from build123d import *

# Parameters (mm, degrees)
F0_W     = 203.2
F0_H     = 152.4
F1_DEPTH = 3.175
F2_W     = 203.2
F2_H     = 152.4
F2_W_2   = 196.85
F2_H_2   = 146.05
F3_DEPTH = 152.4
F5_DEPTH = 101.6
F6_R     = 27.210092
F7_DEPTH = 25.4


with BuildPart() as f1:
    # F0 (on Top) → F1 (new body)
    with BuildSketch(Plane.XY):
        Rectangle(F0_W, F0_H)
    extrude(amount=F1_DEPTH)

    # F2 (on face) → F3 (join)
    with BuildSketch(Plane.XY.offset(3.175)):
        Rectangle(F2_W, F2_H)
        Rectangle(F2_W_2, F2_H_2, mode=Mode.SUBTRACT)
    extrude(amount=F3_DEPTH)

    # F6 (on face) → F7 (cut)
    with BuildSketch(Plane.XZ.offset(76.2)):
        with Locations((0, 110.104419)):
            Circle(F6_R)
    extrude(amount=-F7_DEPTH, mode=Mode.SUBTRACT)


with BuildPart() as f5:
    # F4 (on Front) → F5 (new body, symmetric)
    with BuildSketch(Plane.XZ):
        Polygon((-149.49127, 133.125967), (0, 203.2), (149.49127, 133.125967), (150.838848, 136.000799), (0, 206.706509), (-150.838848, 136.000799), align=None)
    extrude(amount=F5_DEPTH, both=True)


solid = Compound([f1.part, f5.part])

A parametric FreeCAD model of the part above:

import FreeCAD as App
import Part
import Sketcher
Q = App.Units.Quantity

doc = App.newDocument("Part")
params = doc.addObject("Spreadsheet::Sheet", "Params")
for row, (alias, value) in enumerate([
    ("sketch1_width", "8 in"),
    ("sketch1_height", "6 in"),
    ("pad1_length", "0.125 in"),
    ("sketch2_width", "8 in"),
    ("sketch2_height", "6 in"),
    ("sketch2_width2", "7.75 in"),
    ("sketch2_height2", "5.75 in"),
    ("pad2_length", "6 in"),
    ("pocket1_length", "1 in"),
    ("sketch4_length", "6.5 in"),
    ("sketch4_length2", "0.125 in"),
    ("pad3_length", "8 in"),
], start=1):
    params.set(f"A{row}", alias)
    params.set(f"B{row}", "=" + value)
    params.setAlias(f"B{row}", alias)

body = doc.addObject("PartDesign::Body", "Body")

# Sketch on XY plane
sketch1 = body.newObject("Sketcher::SketchObject", "Sketch")
sketch1.AttachmentSupport = (doc.getObject("XY_Plane"), [""])
sketch1.MapMode = "FlatFace"
sketch1.addGeometry([
    Part.LineSegment(App.Vector(-102, 76, 0), App.Vector(-102, -76, 0)),
    Part.LineSegment(App.Vector(-102, -76, 0), App.Vector(102, -76, 0)),
    Part.LineSegment(App.Vector(102, -76, 0), App.Vector(102, 76, 0)),
    Part.LineSegment(App.Vector(102, 76, 0), App.Vector(-102, 76, 0)),
], False)
sketch1.addConstraint([
    Sketcher.Constraint("Coincident", 0, 2, 1, 1),
    Sketcher.Constraint("Coincident", 1, 2, 2, 1),
    Sketcher.Constraint("Coincident", 2, 2, 3, 1),
    Sketcher.Constraint("Coincident", 3, 2, 0, 1),
    Sketcher.Constraint("Vertical", 0),
    Sketcher.Constraint("Horizontal", 1),
    Sketcher.Constraint("Vertical", 2),
    Sketcher.Constraint("Horizontal", 3),
    Sketcher.Constraint("Symmetric", 0, 2, 2, 2, -1, 1),
    Sketcher.Constraint("DistanceX", 1, 1, 1, 2, Q("8 in")),
    Sketcher.Constraint("DistanceY", 0, 2, 0, 1, Q("6 in")),
])
sketch1.setExpression("Constraints[9]", "Params.sketch1_width")
sketch1.setExpression("Constraints[10]", "Params.sketch1_height")
pad1 = body.newObject("PartDesign::Pad", "Pad")
pad1.Profile = sketch1
pad1.setExpression("Length", "Params.pad1_length")

# Sketch on XY plane
sketch2 = body.newObject("Sketcher::SketchObject", "Sketch001")
sketch2.AttachmentSupport = (doc.getObject("XY_Plane"), [""])
sketch2.MapMode = "FlatFace"
sketch2.AttachmentOffset = App.Placement(App.Vector(0, 0, 0.125 * 25.4), App.Rotation())
sketch2.addGeometry([
    Part.LineSegment(App.Vector(-102, 76, 0), App.Vector(-102, -76, 0)),  # 0
    Part.LineSegment(App.Vector(-102, -76, 0), App.Vector(102, -76, 0)),  # 1
    Part.LineSegment(App.Vector(102, -76, 0), App.Vector(102, 76, 0)),  # 2
    Part.LineSegment(App.Vector(102, 76, 0), App.Vector(-102, 76, 0)),  # 3
    Part.LineSegment(App.Vector(98, -73, 0), App.Vector(-98, -73, 0)),  # 4
    Part.LineSegment(App.Vector(-98, -73, 0), App.Vector(-98, 73, 0)),  # 5
    Part.LineSegment(App.Vector(-98, 73, 0), App.Vector(98, 73, 0)),  # 6
    Part.LineSegment(App.Vector(98, 73, 0), App.Vector(98, -73, 0)),  # 7
], False)
sketch2.addConstraint([
    Sketcher.Constraint("Coincident", 0, 2, 1, 1),
    Sketcher.Constraint("Coincident", 1, 2, 2, 1),
    Sketcher.Constraint("Coincident", 2, 2, 3, 1),
    Sketcher.Constraint("Coincident", 3, 2, 0, 1),
    Sketcher.Constraint("Coincident", 4, 2, 5, 1),
    Sketcher.Constraint("Coincident", 5, 2, 6, 1),
    Sketcher.Constraint("Coincident", 6, 2, 7, 1),
    Sketcher.Constraint("Coincident", 7, 2, 4, 1),
    Sketcher.Constraint("Vertical", 0),
    Sketcher.Constraint("Horizontal", 1),
    Sketcher.Constraint("Vertical", 2),
    Sketcher.Constraint("Horizontal", 3),
    Sketcher.Constraint("Horizontal", 4),
    Sketcher.Constraint("Vertical", 5),
    Sketcher.Constraint("Horizontal", 6),
    Sketcher.Constraint("Vertical", 7),
    Sketcher.Constraint("Symmetric", 0, 2, 2, 2, -1, 1),
    Sketcher.Constraint("Symmetric", 4, 2, 6, 2, -1, 1),
    Sketcher.Constraint("DistanceX", 1, 1, 1, 2, Q("8 in")),
    Sketcher.Constraint("DistanceY", 0, 2, 0, 1, Q("6 in")),
    Sketcher.Constraint("DistanceX", 4, 2, 4, 1, Q("7.75 in")),
    Sketcher.Constraint("DistanceY", 5, 1, 5, 2, Q("5.75 in")),
])
sketch2.setExpression("Constraints[18]", "Params.sketch2_width")
sketch2.setExpression("Constraints[19]", "Params.sketch2_height")
sketch2.setExpression("Constraints[20]", "Params.sketch2_width2")
sketch2.setExpression("Constraints[21]", "Params.sketch2_height2")
pad2 = body.newObject("PartDesign::Pad", "Pad001")
pad2.Profile = sketch2
pad2.setExpression("Length", "Params.pad2_length")

# Sketch on XZ plane
sketch3 = body.newObject("Sketcher::SketchObject", "Sketch002")
sketch3.AttachmentSupport = (doc.getObject("XZ_Plane"), [""])
sketch3.MapMode = "FlatFace"
sketch3.AttachmentOffset = App.Placement(App.Vector(0, 0, 3 * 25.4), App.Rotation())
sketch3.addGeometry(Part.Circle(App.Vector(0, 110, 0), App.Vector(0, 0, 1), 27), False)
sketch3.addConstraint([
    Sketcher.Constraint("PointOnObject", 0, 3, -2),
    Sketcher.Constraint("Diameter", 0, Q("54.420184 mm")),
    Sketcher.Constraint("DistanceY", -1, 1, 0, 3, Q("110.104419 mm")),
])
pocket1 = body.newObject("PartDesign::Pocket", "Pocket")
pocket1.Profile = sketch3
pocket1.setExpression("Length", "Params.pocket1_length")
body2 = doc.addObject("PartDesign::Body", "Body001")

# Sketch on XZ plane
sketch4 = body2.newObject("Sketcher::SketchObject", "Sketch003")
sketch4.AttachmentSupport = (doc.getObject("XZ_Plane001"), [""])
sketch4.MapMode = "FlatFace"
sketch4.addGeometry([
    Part.LineSegment(App.Vector(-149.5, 133.1, 0), App.Vector(0, 203.2, 0)),  # 0
    Part.LineSegment(App.Vector(0, 203.2, 0), App.Vector(149.5, 133.1, 0)),  # 1
    Part.LineSegment(App.Vector(149.5, 133.1, 0), App.Vector(150.8, 136, 0)),  # 2
    Part.LineSegment(App.Vector(150.8, 136, 0), App.Vector(0, 206.7, 0)),  # 3
    Part.LineSegment(App.Vector(0, 206.7, 0), App.Vector(-150.8, 136, 0)),  # 4
    Part.LineSegment(App.Vector(-150.8, 136, 0), App.Vector(-149.5, 133.1, 0)),  # 5
], False)
sketch4.addConstraint([
    Sketcher.Constraint("Coincident", 0, 2, 1, 1),
    Sketcher.Constraint("Coincident", 1, 2, 2, 1),
    Sketcher.Constraint("Coincident", 2, 2, 3, 1),
    Sketcher.Constraint("Coincident", 3, 2, 4, 1),
    Sketcher.Constraint("Coincident", 4, 2, 5, 1),
    Sketcher.Constraint("Coincident", 5, 2, 0, 1),
    Sketcher.Constraint("Symmetric", 2, 2, 4, 2, -2),
    Sketcher.Constraint("Symmetric", 1, 2, 5, 2, -2),
    Sketcher.Constraint("PointOnObject", 0, 2, -2),
    Sketcher.Constraint("PointOnObject", 3, 2, -2),
    Sketcher.Constraint("Perpendicular", 1, 2),
    Sketcher.Constraint("Perpendicular", 2, 3),
    Sketcher.Constraint("DistanceY", -1, 1, 0, 2, Q("8 in")),
    Sketcher.Constraint("Distance", 0, Q("6.5 in")),
    Sketcher.Constraint("Distance", 2, Q("0.125 in")),
    Sketcher.Constraint("DistanceY", -1, 1, 2, 2, Q("136.000799 mm")),
])
sketch4.setExpression("Constraints[13]", "Params.sketch4_length")
sketch4.setExpression("Constraints[14]", "Params.sketch4_length2")
pad3 = body2.newObject("PartDesign::Pad", "Pad002")
pad3.Profile = sketch4
pad3.setExpression("Length", "Params.pad3_length")
pad3.Midplane = True

doc.recompute()
